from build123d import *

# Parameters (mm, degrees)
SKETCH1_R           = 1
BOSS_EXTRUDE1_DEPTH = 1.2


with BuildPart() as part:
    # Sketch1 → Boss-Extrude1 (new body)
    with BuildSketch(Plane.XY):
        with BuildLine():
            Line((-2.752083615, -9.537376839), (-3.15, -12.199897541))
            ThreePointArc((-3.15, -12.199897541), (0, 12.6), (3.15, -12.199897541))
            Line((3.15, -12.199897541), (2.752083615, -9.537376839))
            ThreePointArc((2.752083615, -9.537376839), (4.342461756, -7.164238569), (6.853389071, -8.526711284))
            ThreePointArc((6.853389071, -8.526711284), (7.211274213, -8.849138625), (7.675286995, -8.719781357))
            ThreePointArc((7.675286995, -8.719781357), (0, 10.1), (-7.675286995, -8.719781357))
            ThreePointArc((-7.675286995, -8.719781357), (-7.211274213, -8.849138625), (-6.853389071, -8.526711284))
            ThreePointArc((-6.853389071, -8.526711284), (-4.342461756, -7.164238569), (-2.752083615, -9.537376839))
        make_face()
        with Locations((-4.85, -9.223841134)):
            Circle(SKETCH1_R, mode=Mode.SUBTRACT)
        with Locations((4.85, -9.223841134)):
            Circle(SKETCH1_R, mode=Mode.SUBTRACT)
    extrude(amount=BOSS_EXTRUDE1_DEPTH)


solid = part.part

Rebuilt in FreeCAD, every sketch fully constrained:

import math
import FreeCAD as App
import Part
import Sketcher
Q = App.Units.Quantity

doc = App.newDocument("Part")
body = doc.addObject("PartDesign::Body", "Body")

sketch1 = doc.addObject("Sketcher::SketchObject", "Sketch")
body.addObject(sketch1)
sketch1.AttachmentSupport = (doc.XY_Plane, [""])
sketch1.MapMode = "FlatFace"
sketch1.addGeometry([
    Part.LineSegment(App.Vector(-3.15, -12.199898, 0), App.Vector(-2.752084, -9.537377, 0)),
    Part.ArcOfCircle(Part.Circle(App.Vector(-4.85, -9.223841, 0), App.Vector(0, 0, 1), 2.121216), math.radians(-8.5), math.radians(160.813367)),
    Part.ArcOfCircle(Part.Circle(App.Vector(-7.325616, -8.362388, 0), App.Vector(0, 0, 1), 0.5), math.radians(-134.374299), math.radians(-19.186633)),
    Part.ArcOfCircle(Part.Circle(App.Vector(0, -0.875, 0), App.Vector(0, 0, 1), 10.975), math.radians(-45.625701), math.radians(225.625701)),
    Part.ArcOfCircle(Part.Circle(App.Vector(7.325616, -8.362388, 0), App.Vector(0, 0, 1), 0.5), math.radians(-160.813367), math.radians(-45.625701)),
    Part.ArcOfCircle(Part.Circle(App.Vector(4.85, -9.223841, 0), App.Vector(0, 0, 1), 2.121216), math.radians(19.186633), math.radians(188.5)),
    Part.LineSegment(App.Vector(2.752084, -9.537377, 0), App.Vector(3.15, -12.199898, 0)),
    Part.ArcOfCircle(Part.Circle(App.Vector(0, 0, 0), App.Vector(0, 0, 1), 12.6), math.radians(-75.522488), math.radians(255.522488)),
    Part.Circle(App.Vector(4.85, -9.223841, 0), App.Vector(0, 0, 1), 1),
    Part.Circle(App.Vector(-4.85, -9.223841, 0), App.Vector(0, 0, 1), 1),
], False)
sketch1.addConstraint([
    Sketcher.Constraint("Tangent", 0, 2, 1, 1),
    Sketcher.Constraint("Tangent", 1, 2, 2, 2),
    Sketcher.Constraint("Tangent", 2, 1, 3, 2),
    Sketcher.Constraint("Tangent", 3, 1, 4, 2),
    Sketcher.Constraint("Tangent", 4, 1, 5, 1),
    Sketcher.Constraint("Tangent", 5, 2, 6, 1),
    Sketcher.Constraint("Coincident", 6, 2, 7, 1),
    Sketcher.Constraint("Coincident", 7, 2, 0, 1),
    Sketcher.Constraint("Coincident", 7, 3, -1, 1),
    Sketcher.Constraint("Coincident", 8, 3, 5, 3),
    Sketcher.Constraint("Coincident", 9, 3, 1, 3),
    Sketcher.Constraint("Equal", 2, 4),
    Sketcher.Constraint("Equal", 1, 5),
    Sketcher.Constraint("Equal", 8, 9),
    Sketcher.Constraint("Symmetric", 2, 3, 4, 3, -2),
    Sketcher.Constraint("Symmetric", 0, 2, 5, 2, -2),
    Sketcher.Constraint("Diameter", 8, Q("2 mm")),
    Sketcher.Constraint("Radius", 2, Q("0.5 mm")),
    Sketcher.Constraint("Radius", 7, Q("12.6 mm")),
    Sketcher.Constraint("Angle", 0, Q("81.5 deg")),
    Sketcher.Constraint("Radius", 3, Q("10.975 mm")),
    Sketcher.Constraint("DistanceX", 1, 3, 5, 3, Q("9.7 mm")),
    Sketcher.Constraint("DistanceX", 6, 2, 5, 3, Q("1.7 mm")),
    Sketcher.Constraint("DistanceY", 3, 3, -1, 1, Q("0.875 mm")),
    Sketcher.Constraint("Radius", 1, Q("2.121216 mm")),
])
pad1 = doc.addObject("PartDesign::Pad", "Pad")
body.addObject(pad1)
pad1.Profile = sketch1
pad1.Length = 1.2

doc.recompute()
